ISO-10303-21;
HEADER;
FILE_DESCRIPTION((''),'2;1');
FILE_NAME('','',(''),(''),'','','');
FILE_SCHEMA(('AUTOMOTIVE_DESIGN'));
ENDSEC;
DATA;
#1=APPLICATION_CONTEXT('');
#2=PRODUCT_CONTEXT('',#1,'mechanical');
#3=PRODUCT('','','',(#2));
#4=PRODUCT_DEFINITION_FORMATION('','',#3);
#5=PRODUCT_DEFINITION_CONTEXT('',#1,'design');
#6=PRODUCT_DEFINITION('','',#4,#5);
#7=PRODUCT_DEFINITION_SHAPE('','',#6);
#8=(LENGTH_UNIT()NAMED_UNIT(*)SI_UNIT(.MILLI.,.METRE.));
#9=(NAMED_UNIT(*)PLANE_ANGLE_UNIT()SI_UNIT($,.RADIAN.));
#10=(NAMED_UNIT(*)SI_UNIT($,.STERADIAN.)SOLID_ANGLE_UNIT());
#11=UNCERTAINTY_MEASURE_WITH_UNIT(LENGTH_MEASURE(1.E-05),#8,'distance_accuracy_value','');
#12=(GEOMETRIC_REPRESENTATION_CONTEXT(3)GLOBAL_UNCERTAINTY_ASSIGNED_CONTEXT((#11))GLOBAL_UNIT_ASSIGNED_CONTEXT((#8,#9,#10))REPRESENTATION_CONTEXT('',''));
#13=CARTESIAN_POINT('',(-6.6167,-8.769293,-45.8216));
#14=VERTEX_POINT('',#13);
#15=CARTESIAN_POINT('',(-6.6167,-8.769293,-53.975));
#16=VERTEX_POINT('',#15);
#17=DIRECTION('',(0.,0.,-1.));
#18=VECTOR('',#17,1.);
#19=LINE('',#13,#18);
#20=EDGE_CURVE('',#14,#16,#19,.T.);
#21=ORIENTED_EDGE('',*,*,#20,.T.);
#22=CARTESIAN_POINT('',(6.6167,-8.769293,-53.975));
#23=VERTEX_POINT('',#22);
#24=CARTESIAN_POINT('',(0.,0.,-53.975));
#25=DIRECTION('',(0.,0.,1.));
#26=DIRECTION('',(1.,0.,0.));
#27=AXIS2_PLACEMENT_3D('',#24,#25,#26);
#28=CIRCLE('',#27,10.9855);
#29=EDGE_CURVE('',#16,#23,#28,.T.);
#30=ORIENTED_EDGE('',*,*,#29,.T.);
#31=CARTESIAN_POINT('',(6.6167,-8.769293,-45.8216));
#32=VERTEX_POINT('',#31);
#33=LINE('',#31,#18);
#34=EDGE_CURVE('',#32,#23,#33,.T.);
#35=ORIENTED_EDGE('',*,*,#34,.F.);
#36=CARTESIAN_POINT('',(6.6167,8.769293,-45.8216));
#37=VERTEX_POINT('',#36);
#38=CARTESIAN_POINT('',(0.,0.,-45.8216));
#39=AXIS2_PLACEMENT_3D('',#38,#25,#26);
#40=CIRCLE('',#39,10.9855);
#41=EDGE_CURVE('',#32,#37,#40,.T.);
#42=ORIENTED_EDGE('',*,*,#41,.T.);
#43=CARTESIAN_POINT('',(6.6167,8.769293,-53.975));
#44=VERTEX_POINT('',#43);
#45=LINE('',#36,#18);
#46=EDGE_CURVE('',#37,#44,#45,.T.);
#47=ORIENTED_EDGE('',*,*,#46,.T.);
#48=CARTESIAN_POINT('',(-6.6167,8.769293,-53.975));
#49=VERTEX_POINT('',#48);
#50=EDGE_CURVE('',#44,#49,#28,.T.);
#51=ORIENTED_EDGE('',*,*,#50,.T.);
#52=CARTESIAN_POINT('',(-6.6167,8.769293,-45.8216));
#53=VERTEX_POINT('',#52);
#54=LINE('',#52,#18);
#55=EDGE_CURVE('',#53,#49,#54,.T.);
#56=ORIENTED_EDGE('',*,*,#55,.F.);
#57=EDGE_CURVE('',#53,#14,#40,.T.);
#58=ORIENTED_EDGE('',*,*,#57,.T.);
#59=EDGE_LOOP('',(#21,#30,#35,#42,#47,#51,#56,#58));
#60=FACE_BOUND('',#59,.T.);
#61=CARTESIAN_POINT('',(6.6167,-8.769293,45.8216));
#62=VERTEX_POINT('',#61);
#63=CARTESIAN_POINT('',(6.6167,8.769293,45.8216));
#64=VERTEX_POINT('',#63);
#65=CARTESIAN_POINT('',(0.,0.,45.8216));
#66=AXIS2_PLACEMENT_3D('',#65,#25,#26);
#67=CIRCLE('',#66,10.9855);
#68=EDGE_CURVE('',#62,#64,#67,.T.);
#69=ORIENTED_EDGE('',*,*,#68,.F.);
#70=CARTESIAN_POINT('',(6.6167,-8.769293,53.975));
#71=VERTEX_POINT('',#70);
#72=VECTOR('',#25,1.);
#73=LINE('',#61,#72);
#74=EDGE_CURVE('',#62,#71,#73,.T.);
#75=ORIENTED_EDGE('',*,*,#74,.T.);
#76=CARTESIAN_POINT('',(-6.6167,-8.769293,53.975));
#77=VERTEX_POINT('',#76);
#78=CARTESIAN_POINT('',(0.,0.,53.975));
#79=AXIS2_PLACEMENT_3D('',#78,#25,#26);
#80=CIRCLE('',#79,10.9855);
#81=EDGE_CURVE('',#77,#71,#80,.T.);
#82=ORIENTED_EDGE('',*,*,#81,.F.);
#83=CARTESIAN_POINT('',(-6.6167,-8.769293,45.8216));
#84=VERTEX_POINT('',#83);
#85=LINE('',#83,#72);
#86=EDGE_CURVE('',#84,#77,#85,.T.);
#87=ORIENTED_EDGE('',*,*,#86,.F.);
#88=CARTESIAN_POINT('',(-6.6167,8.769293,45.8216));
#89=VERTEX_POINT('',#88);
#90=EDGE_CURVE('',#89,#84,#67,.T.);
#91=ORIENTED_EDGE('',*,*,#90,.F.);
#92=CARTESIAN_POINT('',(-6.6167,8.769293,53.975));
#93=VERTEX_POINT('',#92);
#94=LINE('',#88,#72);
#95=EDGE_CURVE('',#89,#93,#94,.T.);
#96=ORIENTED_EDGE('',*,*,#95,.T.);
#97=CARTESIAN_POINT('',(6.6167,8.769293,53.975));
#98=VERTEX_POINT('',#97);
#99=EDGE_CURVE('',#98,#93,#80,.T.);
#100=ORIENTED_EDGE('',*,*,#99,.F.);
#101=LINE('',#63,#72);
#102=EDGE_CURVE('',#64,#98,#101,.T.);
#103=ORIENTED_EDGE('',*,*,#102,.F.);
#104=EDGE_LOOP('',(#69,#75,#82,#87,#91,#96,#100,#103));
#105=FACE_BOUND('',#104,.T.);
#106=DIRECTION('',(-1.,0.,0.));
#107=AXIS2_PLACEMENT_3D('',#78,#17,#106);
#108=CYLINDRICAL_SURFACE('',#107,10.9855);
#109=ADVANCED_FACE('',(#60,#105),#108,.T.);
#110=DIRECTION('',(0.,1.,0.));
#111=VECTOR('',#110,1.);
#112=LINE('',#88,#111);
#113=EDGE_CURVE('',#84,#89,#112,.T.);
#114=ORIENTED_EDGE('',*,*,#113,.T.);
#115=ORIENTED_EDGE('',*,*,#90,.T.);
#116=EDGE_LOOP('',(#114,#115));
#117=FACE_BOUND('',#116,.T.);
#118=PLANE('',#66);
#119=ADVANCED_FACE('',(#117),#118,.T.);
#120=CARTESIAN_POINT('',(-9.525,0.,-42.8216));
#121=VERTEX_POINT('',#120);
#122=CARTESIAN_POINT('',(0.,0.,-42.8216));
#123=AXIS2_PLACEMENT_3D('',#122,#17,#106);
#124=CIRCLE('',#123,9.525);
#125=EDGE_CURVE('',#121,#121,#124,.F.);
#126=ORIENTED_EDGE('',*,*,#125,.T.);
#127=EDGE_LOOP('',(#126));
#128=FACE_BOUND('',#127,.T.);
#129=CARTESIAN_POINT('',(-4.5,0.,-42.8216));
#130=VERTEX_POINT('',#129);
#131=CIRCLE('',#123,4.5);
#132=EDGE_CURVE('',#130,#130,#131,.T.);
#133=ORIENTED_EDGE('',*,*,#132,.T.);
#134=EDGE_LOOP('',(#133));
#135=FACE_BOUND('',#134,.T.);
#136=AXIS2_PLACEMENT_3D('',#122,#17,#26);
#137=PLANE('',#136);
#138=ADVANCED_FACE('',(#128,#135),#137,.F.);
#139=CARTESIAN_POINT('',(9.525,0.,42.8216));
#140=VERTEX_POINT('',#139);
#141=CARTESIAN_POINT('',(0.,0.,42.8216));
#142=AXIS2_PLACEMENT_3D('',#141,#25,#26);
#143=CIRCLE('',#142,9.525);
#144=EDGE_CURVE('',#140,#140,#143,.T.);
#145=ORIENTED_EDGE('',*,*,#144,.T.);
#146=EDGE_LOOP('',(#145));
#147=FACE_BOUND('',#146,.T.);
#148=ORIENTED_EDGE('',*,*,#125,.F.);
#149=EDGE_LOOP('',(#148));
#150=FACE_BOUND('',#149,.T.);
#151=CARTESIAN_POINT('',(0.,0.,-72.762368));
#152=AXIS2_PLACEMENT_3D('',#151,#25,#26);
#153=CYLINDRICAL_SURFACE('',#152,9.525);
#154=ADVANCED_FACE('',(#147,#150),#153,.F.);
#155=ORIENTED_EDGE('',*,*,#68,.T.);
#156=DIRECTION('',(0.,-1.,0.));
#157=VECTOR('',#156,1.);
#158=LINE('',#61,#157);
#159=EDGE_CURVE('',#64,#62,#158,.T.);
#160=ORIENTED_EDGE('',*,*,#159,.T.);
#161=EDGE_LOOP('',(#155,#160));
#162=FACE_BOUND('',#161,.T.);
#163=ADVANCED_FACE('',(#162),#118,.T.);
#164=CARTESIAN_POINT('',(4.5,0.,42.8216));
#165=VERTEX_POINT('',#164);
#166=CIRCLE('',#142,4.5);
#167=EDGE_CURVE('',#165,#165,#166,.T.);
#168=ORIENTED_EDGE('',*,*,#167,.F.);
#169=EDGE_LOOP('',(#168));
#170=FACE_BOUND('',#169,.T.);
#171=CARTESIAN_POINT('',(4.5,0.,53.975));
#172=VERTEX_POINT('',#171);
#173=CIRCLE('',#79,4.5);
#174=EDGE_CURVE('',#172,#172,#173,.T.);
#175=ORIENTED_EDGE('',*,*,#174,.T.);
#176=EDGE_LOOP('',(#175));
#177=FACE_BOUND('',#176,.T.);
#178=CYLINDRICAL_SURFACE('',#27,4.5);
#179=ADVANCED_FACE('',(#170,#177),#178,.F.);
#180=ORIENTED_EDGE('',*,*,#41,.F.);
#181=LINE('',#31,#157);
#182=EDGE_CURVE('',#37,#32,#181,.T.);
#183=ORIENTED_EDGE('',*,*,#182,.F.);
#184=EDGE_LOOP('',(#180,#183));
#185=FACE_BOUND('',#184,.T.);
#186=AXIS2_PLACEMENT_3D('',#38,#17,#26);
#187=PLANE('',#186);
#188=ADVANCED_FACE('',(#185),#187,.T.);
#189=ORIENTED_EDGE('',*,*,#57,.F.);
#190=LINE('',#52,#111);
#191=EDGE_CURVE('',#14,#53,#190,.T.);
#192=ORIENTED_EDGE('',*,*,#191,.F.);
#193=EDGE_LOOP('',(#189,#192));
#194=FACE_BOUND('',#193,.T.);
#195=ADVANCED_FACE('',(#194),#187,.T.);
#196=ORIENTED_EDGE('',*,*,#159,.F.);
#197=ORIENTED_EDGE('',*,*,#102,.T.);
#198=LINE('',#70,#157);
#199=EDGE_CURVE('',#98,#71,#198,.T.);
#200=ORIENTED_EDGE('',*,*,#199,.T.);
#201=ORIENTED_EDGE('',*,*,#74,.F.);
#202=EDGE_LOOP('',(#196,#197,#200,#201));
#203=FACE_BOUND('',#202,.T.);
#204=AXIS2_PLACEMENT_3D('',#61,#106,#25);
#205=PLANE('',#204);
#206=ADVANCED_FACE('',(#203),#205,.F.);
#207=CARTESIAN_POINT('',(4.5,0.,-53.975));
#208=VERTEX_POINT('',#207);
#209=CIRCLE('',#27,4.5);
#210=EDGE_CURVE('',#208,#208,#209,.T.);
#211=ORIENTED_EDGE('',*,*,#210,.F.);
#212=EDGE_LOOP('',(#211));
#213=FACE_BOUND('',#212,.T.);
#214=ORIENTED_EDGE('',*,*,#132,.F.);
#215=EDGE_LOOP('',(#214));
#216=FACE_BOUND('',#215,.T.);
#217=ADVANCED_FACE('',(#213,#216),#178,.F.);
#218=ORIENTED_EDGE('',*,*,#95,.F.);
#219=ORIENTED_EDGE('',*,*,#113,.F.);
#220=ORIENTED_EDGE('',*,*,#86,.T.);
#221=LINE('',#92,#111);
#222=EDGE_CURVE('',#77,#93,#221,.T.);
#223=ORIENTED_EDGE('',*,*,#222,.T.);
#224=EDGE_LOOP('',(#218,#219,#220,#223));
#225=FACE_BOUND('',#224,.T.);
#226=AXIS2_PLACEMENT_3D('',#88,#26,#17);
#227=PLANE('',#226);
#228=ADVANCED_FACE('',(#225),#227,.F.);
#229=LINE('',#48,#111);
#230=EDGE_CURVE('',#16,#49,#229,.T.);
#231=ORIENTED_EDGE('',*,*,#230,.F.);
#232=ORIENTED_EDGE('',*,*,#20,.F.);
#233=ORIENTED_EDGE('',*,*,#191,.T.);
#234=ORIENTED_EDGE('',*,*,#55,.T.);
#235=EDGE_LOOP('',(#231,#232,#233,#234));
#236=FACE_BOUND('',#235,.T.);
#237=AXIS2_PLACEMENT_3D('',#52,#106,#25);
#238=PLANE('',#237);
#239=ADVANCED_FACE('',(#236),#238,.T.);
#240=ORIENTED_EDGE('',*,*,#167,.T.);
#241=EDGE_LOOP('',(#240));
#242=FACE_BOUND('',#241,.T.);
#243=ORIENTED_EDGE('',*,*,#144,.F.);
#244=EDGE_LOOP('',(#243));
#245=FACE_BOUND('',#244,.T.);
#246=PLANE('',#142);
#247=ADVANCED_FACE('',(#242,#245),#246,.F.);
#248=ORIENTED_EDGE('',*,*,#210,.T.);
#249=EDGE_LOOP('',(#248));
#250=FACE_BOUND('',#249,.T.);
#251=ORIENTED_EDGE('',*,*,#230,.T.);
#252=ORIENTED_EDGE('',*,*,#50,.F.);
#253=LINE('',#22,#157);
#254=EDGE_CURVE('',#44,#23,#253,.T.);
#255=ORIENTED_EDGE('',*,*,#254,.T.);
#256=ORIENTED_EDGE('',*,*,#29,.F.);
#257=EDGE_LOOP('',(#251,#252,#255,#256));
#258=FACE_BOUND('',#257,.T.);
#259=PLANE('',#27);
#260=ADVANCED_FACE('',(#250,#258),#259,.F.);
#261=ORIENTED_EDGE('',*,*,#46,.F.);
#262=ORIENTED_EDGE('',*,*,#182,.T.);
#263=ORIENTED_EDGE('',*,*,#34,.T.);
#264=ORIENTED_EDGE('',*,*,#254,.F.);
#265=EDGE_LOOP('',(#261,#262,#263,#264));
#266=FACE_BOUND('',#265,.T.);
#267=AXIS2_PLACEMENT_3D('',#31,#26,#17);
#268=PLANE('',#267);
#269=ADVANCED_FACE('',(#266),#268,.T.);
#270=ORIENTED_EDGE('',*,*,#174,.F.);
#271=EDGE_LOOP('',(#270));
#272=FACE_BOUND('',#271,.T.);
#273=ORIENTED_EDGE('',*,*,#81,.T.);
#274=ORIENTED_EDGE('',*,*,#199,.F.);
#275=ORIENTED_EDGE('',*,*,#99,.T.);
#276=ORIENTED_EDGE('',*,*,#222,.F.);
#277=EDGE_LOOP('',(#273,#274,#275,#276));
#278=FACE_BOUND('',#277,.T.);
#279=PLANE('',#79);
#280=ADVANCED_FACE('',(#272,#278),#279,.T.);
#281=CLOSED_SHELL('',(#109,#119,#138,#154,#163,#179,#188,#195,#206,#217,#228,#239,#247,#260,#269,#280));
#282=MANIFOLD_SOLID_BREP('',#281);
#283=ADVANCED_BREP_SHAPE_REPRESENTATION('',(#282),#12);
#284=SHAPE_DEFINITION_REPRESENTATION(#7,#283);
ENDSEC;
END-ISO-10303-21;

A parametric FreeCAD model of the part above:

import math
import FreeCAD as App
import Part
import Sketcher

V = App.Vector
Q = App.Units.Quantity

doc = App.newDocument("Part")
body = doc.addObject("PartDesign::Body", "Body")

# Sketch on XY plane
sketch1 = body.newObject("Sketcher::SketchObject", "Sketch")
sketch1.AttachmentSupport = (doc.getObject("XY_Plane"), [""])
sketch1.MapMode = "FlatFace"
sketch1.addGeometry(Part.Circle(V(0, 0, 0), V(0, 0, 1), 10.9855), False)
sketch1.addConstraint([
    Sketcher.Constraint("Coincident", 0, 3, -1, 1),
    Sketcher.Constraint("Diameter", 0, Q("0.865 in")),
])
pad1 = body.newObject("PartDesign::Pad", "Pad")
pad1.Profile = sketch1
pad1.Length = Q("4.25 in")
pad1.Midplane = True

# Sketch on XY plane
sketch2 = body.newObject("Sketcher::SketchObject", "Sketch001")
sketch2.AttachmentSupport = (doc.getObject("XY_Plane"), [""])
sketch2.MapMode = "FlatFace"
sketch2.AttachmentOffset = App.Placement(V(0, 0, 2.125 * 25.4), App.Rotation())
sketch2.addGeometry([
    Part.LineSegment(V(-6.6167, -8.769293, 0), V(-6.6167, 8.769293, 0)),
    Part.ArcOfCircle(Part.Circle(V(0, 0, 0), V(0, 0, 1), 10.9855), math.radians(127.035672), math.radians(232.964328)),
    Part.LineSegment(V(6.6167, 8.769293, 0), V(6.6167, -8.769293, 0)),
    Part.ArcOfCircle(Part.Circle(V(0, 0, 0), V(0, 0, 1), 10.9855), math.radians(-52.964328), math.radians(52.964328)),
], False)
sketch2.addConstraint([
    Sketcher.Constraint("Coincident", 0, 1, 1, 2),
    Sketcher.Constraint("Coincident", 1, 1, 0, 2),
    Sketcher.Constraint("Coincident", 2, 1, 3, 2),
    Sketcher.Constraint("Coincident", 3, 1, 2, 2),
    Sketcher.Constraint("Vertical", 0),
    Sketcher.Constraint("Vertical", 2),
    Sketcher.Constraint("Coincident", 1, 3, -1, 1),
    Sketcher.Constraint("Coincident", 3, 3, -1, 1),
    Sketcher.Constraint("Equal", 1, 3),
    Sketcher.Constraint("Horizontal", 1, 1, 2, 1),
    Sketcher.Constraint("Radius", 1, Q("0.4325 in")),
    Sketcher.Constraint("DistanceX", 1, 1, 2, 1, Q("0.521 in")),
])
pocket1 = body.newObject("PartDesign::Pocket", "Pocket")
pocket1.Profile = sketch2
pocket1.Length = Q("0.321 in")
doc.recompute()

mirrored = body.newObject("PartDesign::Mirrored", "Mirrored")
mirrored.Originals = [pocket1]
mirrored.MirrorPlane = (doc.getObject("XY_Plane"), [""])
body.Tip = mirrored

# Sketch on XY plane
sketch3 = body.newObject("Sketcher::SketchObject", "Sketch002")
sketch3.AttachmentSupport = (doc.getObject("XY_Plane"), [""])
sketch3.MapMode = "FlatFace"
sketch3.AttachmentOffset = App.Placement(V(0, 0, 42.8216), App.Rotation())
sketch3.addGeometry(Part.Circle(V(0, 0, 0), V(0, 0, 1), 9.525), False)
sketch3.addConstraint([
    Sketcher.Constraint("Coincident", 0, 3, -1, 1),
    Sketcher.Constraint("Diameter", 0, Q("0.75 in")),
])
pocket2 = body.newObject("PartDesign::Pocket", "Pocket001")
pocket2.Profile = sketch3
pocket2.Length = 85.6432

# Sketch on XY plane
sketch4 = body.newObject("Sketcher::SketchObject", "Sketch003")
sketch4.AttachmentSupport = (doc.getObject("XY_Plane"), [""])
sketch4.MapMode = "FlatFace"
sketch4.AttachmentOffset = App.Placement(V(0, 0, 2.125 * 25.4), App.Rotation())
sketch4.addGeometry(Part.Circle(V(0, 0, 0), V(0, 0, 1), 4.5), False)
sketch4.addConstraint([
    Sketcher.Constraint("Coincident", 0, 3, -1, 1),
    Sketcher.Constraint("Diameter", 0, 9.0),
])
pocket3 = body.newObject("PartDesign::Pocket", "Pocket002")
pocket3.Profile = sketch4
pocket3.Type = "ThroughAll"

doc.recompute()
